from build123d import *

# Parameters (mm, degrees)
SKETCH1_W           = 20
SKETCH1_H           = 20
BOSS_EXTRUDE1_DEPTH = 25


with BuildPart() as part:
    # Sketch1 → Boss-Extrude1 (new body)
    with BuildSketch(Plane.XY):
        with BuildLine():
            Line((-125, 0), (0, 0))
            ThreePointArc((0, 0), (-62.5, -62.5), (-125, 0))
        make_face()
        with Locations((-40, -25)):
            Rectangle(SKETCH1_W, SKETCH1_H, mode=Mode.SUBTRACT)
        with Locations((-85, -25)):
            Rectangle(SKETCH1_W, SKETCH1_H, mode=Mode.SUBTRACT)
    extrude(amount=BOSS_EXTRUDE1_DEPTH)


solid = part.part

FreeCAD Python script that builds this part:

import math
import FreeCAD as App
import Part
import Sketcher

V = App.Vector
Q = App.Units.Quantity

doc = App.newDocument("Part")
body = doc.addObject("PartDesign::Body", "Body")

# Sketch on XY plane
sketch1 = doc.addObject("Sketcher::SketchObject", "Sketch")
body.addObject(sketch1)
sketch1.AttachmentSupport = (doc.XY_Plane, [""])
sketch1.MapMode = "FlatFace"
sketch1.addGeometry([
    Part.LineSegment(V(0, 0, 0), V(-125, 0, 0)),  # 0
    Part.ArcOfCircle(Part.Circle(V(-62, 0, 0), V(0, 0, 1), 62), math.radians(180), math.radians(360)),  # 1
    Part.LineSegment(V(-50, -35, 0), V(-50, -15, 0)),  # 2
    Part.LineSegment(V(-50, -15, 0), V(-30, -15, 0)),  # 3
    Part.LineSegment(V(-30, -15, 0), V(-30, -35, 0)),  # 4
    Part.LineSegment(V(-30, -35, 0), V(-50, -35, 0)),  # 5
    Part.LineSegment(V(-95, -35, 0), V(-95, -15, 0)),  # 6
    Part.LineSegment(V(-95, -15, 0), V(-75, -15, 0)),  # 7
    Part.LineSegment(V(-75, -15, 0), V(-75, -35, 0)),  # 8
    Part.LineSegment(V(-75, -35, 0), V(-95, -35, 0)),  # 9
], False)
sketch1.addConstraint([
    Sketcher.Constraint("Coincident", 0, 1, 1, 2),
    Sketcher.Constraint("Coincident", 1, 1, 0, 2),
    Sketcher.Constraint("Coincident", 2, 2, 3, 1),
    Sketcher.Constraint("Coincident", 3, 2, 4, 1),
    Sketcher.Constraint("Coincident", 4, 2, 5, 1),
    Sketcher.Constraint("Coincident", 5, 2, 2, 1),
    Sketcher.Constraint("Coincident", 6, 2, 7, 1),
    Sketcher.Constraint("Coincident", 7, 2, 8, 1),
    Sketcher.Constraint("Coincident", 8, 2, 9, 1),
    Sketcher.Constraint("Coincident", 9, 2, 6, 1),
    Sketcher.Constraint("Horizontal", 0),
    Sketcher.Constraint("Vertical", 2),
    Sketcher.Constraint("Horizontal", 3),
    Sketcher.Constraint("Vertical", 4),
    Sketcher.Constraint("Horizontal", 5),
    Sketcher.Constraint("Vertical", 6),
    Sketcher.Constraint("Horizontal", 7),
    Sketcher.Constraint("Vertical", 8),
    Sketcher.Constraint("Horizontal", 9),
    Sketcher.Constraint("Coincident", 0, 1, -1, 1),
    Sketcher.Constraint("PointOnObject", 1, 3, -1),
    Sketcher.Constraint("Horizontal", 3, 2, 6, 2),
    Sketcher.Constraint("Horizontal", 5, 2, 8, 2),
    Sketcher.Constraint("Equal", 5, 7),
    Sketcher.Constraint("Equal", 9, 2),
    Sketcher.Constraint("Radius", 1, Q("62.5 mm")),
    Sketcher.Constraint("DistanceX", 3, 1, 3, 2, Q("20 mm")),
    Sketcher.Constraint("DistanceX", 2, 2, -1, 1, Q("50 mm")),
    Sketcher.Constraint("DistanceY", 2, 2, -1, 1, Q("15 mm")),
    Sketcher.Constraint("DistanceX", 6, 2, -1, 1, Q("95 mm")),
])
pad1 = doc.addObject("PartDesign::Pad", "Pad")
body.addObject(pad1)
pad1.Profile = sketch1
pad1.Length = 25

doc.recompute()
